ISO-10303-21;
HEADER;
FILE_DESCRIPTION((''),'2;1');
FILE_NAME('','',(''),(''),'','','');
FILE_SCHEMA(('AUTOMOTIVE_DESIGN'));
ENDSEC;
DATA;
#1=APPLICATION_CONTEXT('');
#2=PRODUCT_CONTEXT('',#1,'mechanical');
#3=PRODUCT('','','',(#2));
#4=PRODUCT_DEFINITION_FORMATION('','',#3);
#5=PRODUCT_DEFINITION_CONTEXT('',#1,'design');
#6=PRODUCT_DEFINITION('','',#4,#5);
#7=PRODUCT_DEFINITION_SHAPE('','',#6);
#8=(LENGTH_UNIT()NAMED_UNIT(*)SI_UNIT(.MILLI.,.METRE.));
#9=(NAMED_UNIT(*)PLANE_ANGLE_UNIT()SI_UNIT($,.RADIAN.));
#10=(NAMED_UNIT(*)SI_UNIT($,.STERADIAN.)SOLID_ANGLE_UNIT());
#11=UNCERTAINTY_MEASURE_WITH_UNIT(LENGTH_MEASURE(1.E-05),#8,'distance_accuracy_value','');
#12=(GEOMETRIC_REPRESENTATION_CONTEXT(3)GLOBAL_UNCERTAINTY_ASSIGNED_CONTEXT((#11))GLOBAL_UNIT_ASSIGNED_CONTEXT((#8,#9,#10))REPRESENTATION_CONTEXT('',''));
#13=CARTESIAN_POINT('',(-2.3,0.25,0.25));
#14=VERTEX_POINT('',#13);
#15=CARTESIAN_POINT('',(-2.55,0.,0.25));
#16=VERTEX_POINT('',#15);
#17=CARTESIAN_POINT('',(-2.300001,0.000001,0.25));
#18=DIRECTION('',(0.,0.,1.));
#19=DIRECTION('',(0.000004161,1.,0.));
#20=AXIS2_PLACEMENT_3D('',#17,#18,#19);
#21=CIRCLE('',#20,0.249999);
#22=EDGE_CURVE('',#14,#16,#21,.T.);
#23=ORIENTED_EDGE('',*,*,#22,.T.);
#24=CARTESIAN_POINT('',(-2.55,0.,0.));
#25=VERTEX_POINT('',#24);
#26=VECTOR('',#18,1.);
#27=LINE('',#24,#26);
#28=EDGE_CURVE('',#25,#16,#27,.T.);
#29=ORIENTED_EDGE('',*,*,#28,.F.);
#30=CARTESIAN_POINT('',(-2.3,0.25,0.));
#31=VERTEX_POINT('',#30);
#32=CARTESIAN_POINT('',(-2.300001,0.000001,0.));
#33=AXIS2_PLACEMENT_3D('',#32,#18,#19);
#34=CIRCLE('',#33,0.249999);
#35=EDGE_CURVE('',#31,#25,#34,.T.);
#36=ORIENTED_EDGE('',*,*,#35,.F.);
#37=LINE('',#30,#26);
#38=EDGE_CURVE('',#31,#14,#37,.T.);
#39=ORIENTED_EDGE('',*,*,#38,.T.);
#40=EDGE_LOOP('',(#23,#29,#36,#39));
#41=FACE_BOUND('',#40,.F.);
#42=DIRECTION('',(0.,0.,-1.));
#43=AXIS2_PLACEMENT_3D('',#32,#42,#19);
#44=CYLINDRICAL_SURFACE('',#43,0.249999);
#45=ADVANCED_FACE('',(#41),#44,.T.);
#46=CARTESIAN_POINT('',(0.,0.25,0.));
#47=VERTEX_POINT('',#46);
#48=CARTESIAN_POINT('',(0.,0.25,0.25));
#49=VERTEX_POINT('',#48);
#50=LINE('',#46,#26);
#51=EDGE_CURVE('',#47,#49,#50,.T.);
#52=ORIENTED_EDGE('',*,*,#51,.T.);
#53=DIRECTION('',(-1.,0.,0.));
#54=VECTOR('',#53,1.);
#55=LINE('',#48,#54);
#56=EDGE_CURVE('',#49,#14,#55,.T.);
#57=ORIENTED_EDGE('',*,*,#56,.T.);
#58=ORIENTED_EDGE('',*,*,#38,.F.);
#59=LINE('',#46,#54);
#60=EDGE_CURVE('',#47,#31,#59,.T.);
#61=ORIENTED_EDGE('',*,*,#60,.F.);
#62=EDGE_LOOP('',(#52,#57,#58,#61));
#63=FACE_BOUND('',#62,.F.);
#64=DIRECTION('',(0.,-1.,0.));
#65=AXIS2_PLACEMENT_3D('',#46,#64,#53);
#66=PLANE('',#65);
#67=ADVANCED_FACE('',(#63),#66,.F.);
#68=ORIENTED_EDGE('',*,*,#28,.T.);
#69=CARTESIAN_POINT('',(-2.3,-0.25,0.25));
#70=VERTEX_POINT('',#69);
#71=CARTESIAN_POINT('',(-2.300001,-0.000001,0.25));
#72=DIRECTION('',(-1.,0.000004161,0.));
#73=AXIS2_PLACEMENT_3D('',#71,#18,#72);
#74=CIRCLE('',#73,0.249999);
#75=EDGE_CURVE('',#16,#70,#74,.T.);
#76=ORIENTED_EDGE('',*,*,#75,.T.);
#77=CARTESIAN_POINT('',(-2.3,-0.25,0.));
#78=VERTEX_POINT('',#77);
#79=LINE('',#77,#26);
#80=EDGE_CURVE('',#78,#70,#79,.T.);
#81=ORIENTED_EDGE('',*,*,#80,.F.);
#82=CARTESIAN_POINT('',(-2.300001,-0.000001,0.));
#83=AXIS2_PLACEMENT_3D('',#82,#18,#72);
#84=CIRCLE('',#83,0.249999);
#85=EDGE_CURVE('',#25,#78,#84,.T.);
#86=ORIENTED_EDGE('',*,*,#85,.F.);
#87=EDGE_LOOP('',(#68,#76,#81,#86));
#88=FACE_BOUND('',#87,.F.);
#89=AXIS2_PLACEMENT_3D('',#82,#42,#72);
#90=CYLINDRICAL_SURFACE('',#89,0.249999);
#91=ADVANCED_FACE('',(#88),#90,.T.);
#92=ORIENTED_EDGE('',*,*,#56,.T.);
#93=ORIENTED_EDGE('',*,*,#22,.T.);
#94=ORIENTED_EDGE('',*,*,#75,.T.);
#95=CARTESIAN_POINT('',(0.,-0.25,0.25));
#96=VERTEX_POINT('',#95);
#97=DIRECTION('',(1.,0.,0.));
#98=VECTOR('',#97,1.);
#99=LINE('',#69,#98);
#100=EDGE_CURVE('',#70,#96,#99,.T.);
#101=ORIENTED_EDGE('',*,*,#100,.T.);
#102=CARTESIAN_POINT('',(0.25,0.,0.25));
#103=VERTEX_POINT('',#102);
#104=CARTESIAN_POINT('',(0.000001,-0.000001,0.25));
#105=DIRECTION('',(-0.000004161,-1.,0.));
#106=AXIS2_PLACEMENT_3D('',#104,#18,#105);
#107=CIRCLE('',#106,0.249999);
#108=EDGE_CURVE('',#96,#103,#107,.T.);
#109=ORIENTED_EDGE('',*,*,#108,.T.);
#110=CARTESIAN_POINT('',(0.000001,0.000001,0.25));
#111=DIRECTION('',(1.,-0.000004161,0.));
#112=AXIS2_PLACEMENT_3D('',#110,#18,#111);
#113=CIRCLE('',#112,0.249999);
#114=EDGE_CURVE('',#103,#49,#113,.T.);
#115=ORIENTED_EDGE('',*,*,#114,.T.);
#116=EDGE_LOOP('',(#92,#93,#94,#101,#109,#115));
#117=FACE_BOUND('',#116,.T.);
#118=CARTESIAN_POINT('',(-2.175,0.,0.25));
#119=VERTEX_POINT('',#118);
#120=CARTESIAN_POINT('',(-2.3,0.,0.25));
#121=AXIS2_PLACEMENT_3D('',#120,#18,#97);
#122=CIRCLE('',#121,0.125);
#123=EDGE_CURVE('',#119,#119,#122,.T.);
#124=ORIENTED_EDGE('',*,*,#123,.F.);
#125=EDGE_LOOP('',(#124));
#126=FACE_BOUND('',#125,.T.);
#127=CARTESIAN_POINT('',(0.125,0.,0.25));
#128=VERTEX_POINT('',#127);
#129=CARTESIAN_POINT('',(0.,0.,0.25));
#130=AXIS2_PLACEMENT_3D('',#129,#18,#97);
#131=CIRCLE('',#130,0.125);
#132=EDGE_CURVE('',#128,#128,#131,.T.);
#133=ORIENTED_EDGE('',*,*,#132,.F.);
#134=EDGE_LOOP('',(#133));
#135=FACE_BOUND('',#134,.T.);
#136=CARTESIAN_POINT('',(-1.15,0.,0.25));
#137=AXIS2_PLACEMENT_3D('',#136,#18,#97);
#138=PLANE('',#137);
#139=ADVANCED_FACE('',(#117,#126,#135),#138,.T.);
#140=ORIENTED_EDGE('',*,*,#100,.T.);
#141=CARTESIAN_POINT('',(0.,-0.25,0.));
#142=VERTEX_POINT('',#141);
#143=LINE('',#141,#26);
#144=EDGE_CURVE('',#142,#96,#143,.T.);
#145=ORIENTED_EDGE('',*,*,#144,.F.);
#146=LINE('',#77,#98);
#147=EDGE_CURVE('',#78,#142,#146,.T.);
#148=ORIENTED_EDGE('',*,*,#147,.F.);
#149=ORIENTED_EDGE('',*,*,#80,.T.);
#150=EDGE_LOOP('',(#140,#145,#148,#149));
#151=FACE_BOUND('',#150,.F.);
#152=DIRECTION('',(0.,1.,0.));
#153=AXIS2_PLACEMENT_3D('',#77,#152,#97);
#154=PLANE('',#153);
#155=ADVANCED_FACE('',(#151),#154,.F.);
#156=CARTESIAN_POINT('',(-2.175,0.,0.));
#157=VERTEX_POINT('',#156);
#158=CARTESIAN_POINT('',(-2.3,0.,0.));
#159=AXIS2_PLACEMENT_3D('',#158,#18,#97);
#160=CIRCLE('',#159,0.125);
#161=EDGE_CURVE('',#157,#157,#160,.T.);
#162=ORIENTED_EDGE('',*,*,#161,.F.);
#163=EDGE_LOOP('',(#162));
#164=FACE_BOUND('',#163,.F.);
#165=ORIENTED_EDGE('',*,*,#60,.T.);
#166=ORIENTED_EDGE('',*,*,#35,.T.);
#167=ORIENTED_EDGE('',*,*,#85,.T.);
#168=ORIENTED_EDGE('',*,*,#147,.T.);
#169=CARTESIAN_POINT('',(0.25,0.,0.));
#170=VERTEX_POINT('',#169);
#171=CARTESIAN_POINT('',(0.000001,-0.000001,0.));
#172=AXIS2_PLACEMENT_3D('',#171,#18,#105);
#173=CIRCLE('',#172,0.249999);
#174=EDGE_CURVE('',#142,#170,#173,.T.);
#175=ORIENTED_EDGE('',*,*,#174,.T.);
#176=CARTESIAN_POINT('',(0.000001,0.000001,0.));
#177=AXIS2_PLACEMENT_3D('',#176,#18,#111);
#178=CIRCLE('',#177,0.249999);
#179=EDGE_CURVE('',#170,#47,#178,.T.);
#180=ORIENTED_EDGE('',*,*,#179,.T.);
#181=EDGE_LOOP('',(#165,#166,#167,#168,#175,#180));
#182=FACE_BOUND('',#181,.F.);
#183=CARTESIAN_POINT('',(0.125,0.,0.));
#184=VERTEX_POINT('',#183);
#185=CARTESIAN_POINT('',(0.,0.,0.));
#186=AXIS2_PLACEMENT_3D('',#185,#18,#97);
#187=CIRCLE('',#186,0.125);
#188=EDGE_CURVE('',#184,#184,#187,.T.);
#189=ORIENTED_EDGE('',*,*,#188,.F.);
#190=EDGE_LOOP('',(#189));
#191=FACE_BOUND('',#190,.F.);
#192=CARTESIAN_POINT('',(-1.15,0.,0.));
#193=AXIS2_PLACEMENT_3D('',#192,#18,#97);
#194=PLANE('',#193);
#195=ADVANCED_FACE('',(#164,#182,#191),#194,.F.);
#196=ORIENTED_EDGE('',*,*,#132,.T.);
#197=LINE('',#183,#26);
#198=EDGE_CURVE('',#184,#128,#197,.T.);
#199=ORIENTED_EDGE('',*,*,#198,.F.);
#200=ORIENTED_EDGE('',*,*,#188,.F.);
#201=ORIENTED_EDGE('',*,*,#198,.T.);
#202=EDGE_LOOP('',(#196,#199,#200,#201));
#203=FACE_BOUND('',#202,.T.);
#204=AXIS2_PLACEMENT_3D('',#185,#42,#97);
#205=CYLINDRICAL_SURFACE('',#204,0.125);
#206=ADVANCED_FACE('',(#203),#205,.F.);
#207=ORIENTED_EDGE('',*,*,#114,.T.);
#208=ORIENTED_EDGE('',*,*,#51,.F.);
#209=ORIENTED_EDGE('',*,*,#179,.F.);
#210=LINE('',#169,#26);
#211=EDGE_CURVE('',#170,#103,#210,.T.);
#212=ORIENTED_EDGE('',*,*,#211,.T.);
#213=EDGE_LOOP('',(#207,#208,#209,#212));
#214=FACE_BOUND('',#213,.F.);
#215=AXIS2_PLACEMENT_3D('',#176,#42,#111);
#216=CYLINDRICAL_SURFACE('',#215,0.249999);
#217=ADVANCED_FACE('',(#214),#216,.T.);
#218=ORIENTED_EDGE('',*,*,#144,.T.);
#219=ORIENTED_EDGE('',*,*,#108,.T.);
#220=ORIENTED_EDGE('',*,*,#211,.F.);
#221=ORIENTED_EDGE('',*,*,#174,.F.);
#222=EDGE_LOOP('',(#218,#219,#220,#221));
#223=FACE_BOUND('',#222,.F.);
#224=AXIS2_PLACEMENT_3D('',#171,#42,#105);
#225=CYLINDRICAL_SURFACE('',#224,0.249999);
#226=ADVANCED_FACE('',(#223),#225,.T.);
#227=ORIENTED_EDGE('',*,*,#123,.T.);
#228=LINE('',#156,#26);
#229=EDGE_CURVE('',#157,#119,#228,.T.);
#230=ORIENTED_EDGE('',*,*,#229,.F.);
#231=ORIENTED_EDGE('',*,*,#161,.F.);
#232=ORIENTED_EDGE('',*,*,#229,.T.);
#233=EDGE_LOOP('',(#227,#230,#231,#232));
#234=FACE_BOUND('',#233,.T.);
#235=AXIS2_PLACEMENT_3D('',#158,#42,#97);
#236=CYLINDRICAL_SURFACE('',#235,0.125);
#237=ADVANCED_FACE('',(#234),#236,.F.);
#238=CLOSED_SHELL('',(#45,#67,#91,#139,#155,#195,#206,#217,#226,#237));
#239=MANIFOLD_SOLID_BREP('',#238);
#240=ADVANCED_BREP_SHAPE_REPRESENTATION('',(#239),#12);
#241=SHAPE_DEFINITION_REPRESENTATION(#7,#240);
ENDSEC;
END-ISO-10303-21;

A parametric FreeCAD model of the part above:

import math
import FreeCAD as App
import Part
import Sketcher

V = App.Vector
Q = App.Units.Quantity

doc = App.newDocument("Part")
params = doc.addObject("Spreadsheet::Sheet", "Params")
for row, (alias, value) in enumerate([
    ("sketch1_diameter", "0.25 mm"),
    ("sketch1_radius", "0.249999 mm"),
    ("sketch1_width", "2.3 mm"),
    ("pad1_length", "0.25 mm"),
], start=1):
    params.set(f"A{row}", alias)
    params.set(f"B{row}", "=" + value)
    params.setAlias(f"B{row}", alias)

body = doc.addObject("PartDesign::Body", "Body")

# Sketch on XY plane
sketch1 = doc.addObject("Sketcher::SketchObject", "Sketch")
body.addObject(sketch1)
sketch1.AttachmentSupport = (doc.XY_Plane, [""])
sketch1.MapMode = "FlatFace"
sketch1.addGeometry([
    Part.LineSegment(V(0, 0.25, 0), V(-2.3, 0.25, 0)),  # 0
    Part.ArcOfCircle(Part.Circle(V(-2.300001, 0.000001, 0), V(0, 0, 1), 0.249999), math.radians(89.999762), math.radians(180.000238)),  # 1
    Part.ArcOfCircle(Part.Circle(V(-2.300001, -0.000001, 0), V(0, 0, 1), 0.249999), math.radians(179.999762), math.radians(270.000238)),  # 2
    Part.LineSegment(V(-2.3, -0.25, 0), V(0, -0.25, 0)),  # 3
    Part.ArcOfCircle(Part.Circle(V(0.000001, -0.000001, 0), V(0, 0, 1), 0.249999), math.radians(-90.000238), math.radians(0.000238)),  # 4
    Part.ArcOfCircle(Part.Circle(V(0.000001, 0.000001, 0), V(0, 0, 1), 0.249999), math.radians(-0.000238), math.radians(90.000238)),  # 5
    Part.Circle(V(-2.3, 0, 0), V(0, 0, 1), 0.125),  # 6
    Part.Circle(V(0, 0, 0), V(0, 0, 1), 0.125),  # 7
], False)
sketch1.addConstraint([
    Sketcher.Constraint("Coincident", 0, 2, 1, 1),
    Sketcher.Constraint("Coincident", 1, 2, 2, 1),
    Sketcher.Constraint("Coincident", 2, 2, 3, 1),
    Sketcher.Constraint("Coincident", 3, 2, 4, 1),
    Sketcher.Constraint("Coincident", 4, 2, 5, 1),
    Sketcher.Constraint("Coincident", 5, 2, 0, 1),
    Sketcher.Constraint("Horizontal", 0),
    Sketcher.Constraint("Horizontal", 3),
    Sketcher.Constraint("Coincident", 4, 3, -1, 1),
    Sketcher.Constraint("Coincident", 5, 3, -1, 1),
    Sketcher.Constraint("Coincident", 7, 3, -1, 1),
    Sketcher.Constraint("Coincident", 2, 3, 1, 3),
    Sketcher.Constraint("Coincident", 6, 3, 1, 3),
    Sketcher.Constraint("Equal", 6, 7),
    Sketcher.Constraint("PointOnObject", 1, 2, -1),
    Sketcher.Constraint("PointOnObject", 3, 2, -2),
    Sketcher.Constraint("PointOnObject", 4, 2, -1),
    Sketcher.Constraint("PointOnObject", 5, 2, -2),
    Sketcher.Constraint("Vertical", 6, 3, 0, 2),
    Sketcher.Constraint("Vertical", 0, 2, 2, 2),
    Sketcher.Constraint("Diameter", 6, Q("0.25 mm")),
    Sketcher.Constraint("Radius", 1, Q("0.249999 mm")),
    Sketcher.Constraint("DistanceX", 0, 2, 0, 1, Q("2.3 mm")),
])
sketch1.setExpression("Constraints[20]", "Params.sketch1_diameter")
sketch1.setExpression("Constraints[21]", "Params.sketch1_radius")
sketch1.setExpression("Constraints[22]", "Params.sketch1_width")
pad1 = doc.addObject("PartDesign::Pad", "Pad")
body.addObject(pad1)
pad1.Profile = sketch1
pad1.setExpression("Length", "Params.pad1_length")

doc.recompute()
